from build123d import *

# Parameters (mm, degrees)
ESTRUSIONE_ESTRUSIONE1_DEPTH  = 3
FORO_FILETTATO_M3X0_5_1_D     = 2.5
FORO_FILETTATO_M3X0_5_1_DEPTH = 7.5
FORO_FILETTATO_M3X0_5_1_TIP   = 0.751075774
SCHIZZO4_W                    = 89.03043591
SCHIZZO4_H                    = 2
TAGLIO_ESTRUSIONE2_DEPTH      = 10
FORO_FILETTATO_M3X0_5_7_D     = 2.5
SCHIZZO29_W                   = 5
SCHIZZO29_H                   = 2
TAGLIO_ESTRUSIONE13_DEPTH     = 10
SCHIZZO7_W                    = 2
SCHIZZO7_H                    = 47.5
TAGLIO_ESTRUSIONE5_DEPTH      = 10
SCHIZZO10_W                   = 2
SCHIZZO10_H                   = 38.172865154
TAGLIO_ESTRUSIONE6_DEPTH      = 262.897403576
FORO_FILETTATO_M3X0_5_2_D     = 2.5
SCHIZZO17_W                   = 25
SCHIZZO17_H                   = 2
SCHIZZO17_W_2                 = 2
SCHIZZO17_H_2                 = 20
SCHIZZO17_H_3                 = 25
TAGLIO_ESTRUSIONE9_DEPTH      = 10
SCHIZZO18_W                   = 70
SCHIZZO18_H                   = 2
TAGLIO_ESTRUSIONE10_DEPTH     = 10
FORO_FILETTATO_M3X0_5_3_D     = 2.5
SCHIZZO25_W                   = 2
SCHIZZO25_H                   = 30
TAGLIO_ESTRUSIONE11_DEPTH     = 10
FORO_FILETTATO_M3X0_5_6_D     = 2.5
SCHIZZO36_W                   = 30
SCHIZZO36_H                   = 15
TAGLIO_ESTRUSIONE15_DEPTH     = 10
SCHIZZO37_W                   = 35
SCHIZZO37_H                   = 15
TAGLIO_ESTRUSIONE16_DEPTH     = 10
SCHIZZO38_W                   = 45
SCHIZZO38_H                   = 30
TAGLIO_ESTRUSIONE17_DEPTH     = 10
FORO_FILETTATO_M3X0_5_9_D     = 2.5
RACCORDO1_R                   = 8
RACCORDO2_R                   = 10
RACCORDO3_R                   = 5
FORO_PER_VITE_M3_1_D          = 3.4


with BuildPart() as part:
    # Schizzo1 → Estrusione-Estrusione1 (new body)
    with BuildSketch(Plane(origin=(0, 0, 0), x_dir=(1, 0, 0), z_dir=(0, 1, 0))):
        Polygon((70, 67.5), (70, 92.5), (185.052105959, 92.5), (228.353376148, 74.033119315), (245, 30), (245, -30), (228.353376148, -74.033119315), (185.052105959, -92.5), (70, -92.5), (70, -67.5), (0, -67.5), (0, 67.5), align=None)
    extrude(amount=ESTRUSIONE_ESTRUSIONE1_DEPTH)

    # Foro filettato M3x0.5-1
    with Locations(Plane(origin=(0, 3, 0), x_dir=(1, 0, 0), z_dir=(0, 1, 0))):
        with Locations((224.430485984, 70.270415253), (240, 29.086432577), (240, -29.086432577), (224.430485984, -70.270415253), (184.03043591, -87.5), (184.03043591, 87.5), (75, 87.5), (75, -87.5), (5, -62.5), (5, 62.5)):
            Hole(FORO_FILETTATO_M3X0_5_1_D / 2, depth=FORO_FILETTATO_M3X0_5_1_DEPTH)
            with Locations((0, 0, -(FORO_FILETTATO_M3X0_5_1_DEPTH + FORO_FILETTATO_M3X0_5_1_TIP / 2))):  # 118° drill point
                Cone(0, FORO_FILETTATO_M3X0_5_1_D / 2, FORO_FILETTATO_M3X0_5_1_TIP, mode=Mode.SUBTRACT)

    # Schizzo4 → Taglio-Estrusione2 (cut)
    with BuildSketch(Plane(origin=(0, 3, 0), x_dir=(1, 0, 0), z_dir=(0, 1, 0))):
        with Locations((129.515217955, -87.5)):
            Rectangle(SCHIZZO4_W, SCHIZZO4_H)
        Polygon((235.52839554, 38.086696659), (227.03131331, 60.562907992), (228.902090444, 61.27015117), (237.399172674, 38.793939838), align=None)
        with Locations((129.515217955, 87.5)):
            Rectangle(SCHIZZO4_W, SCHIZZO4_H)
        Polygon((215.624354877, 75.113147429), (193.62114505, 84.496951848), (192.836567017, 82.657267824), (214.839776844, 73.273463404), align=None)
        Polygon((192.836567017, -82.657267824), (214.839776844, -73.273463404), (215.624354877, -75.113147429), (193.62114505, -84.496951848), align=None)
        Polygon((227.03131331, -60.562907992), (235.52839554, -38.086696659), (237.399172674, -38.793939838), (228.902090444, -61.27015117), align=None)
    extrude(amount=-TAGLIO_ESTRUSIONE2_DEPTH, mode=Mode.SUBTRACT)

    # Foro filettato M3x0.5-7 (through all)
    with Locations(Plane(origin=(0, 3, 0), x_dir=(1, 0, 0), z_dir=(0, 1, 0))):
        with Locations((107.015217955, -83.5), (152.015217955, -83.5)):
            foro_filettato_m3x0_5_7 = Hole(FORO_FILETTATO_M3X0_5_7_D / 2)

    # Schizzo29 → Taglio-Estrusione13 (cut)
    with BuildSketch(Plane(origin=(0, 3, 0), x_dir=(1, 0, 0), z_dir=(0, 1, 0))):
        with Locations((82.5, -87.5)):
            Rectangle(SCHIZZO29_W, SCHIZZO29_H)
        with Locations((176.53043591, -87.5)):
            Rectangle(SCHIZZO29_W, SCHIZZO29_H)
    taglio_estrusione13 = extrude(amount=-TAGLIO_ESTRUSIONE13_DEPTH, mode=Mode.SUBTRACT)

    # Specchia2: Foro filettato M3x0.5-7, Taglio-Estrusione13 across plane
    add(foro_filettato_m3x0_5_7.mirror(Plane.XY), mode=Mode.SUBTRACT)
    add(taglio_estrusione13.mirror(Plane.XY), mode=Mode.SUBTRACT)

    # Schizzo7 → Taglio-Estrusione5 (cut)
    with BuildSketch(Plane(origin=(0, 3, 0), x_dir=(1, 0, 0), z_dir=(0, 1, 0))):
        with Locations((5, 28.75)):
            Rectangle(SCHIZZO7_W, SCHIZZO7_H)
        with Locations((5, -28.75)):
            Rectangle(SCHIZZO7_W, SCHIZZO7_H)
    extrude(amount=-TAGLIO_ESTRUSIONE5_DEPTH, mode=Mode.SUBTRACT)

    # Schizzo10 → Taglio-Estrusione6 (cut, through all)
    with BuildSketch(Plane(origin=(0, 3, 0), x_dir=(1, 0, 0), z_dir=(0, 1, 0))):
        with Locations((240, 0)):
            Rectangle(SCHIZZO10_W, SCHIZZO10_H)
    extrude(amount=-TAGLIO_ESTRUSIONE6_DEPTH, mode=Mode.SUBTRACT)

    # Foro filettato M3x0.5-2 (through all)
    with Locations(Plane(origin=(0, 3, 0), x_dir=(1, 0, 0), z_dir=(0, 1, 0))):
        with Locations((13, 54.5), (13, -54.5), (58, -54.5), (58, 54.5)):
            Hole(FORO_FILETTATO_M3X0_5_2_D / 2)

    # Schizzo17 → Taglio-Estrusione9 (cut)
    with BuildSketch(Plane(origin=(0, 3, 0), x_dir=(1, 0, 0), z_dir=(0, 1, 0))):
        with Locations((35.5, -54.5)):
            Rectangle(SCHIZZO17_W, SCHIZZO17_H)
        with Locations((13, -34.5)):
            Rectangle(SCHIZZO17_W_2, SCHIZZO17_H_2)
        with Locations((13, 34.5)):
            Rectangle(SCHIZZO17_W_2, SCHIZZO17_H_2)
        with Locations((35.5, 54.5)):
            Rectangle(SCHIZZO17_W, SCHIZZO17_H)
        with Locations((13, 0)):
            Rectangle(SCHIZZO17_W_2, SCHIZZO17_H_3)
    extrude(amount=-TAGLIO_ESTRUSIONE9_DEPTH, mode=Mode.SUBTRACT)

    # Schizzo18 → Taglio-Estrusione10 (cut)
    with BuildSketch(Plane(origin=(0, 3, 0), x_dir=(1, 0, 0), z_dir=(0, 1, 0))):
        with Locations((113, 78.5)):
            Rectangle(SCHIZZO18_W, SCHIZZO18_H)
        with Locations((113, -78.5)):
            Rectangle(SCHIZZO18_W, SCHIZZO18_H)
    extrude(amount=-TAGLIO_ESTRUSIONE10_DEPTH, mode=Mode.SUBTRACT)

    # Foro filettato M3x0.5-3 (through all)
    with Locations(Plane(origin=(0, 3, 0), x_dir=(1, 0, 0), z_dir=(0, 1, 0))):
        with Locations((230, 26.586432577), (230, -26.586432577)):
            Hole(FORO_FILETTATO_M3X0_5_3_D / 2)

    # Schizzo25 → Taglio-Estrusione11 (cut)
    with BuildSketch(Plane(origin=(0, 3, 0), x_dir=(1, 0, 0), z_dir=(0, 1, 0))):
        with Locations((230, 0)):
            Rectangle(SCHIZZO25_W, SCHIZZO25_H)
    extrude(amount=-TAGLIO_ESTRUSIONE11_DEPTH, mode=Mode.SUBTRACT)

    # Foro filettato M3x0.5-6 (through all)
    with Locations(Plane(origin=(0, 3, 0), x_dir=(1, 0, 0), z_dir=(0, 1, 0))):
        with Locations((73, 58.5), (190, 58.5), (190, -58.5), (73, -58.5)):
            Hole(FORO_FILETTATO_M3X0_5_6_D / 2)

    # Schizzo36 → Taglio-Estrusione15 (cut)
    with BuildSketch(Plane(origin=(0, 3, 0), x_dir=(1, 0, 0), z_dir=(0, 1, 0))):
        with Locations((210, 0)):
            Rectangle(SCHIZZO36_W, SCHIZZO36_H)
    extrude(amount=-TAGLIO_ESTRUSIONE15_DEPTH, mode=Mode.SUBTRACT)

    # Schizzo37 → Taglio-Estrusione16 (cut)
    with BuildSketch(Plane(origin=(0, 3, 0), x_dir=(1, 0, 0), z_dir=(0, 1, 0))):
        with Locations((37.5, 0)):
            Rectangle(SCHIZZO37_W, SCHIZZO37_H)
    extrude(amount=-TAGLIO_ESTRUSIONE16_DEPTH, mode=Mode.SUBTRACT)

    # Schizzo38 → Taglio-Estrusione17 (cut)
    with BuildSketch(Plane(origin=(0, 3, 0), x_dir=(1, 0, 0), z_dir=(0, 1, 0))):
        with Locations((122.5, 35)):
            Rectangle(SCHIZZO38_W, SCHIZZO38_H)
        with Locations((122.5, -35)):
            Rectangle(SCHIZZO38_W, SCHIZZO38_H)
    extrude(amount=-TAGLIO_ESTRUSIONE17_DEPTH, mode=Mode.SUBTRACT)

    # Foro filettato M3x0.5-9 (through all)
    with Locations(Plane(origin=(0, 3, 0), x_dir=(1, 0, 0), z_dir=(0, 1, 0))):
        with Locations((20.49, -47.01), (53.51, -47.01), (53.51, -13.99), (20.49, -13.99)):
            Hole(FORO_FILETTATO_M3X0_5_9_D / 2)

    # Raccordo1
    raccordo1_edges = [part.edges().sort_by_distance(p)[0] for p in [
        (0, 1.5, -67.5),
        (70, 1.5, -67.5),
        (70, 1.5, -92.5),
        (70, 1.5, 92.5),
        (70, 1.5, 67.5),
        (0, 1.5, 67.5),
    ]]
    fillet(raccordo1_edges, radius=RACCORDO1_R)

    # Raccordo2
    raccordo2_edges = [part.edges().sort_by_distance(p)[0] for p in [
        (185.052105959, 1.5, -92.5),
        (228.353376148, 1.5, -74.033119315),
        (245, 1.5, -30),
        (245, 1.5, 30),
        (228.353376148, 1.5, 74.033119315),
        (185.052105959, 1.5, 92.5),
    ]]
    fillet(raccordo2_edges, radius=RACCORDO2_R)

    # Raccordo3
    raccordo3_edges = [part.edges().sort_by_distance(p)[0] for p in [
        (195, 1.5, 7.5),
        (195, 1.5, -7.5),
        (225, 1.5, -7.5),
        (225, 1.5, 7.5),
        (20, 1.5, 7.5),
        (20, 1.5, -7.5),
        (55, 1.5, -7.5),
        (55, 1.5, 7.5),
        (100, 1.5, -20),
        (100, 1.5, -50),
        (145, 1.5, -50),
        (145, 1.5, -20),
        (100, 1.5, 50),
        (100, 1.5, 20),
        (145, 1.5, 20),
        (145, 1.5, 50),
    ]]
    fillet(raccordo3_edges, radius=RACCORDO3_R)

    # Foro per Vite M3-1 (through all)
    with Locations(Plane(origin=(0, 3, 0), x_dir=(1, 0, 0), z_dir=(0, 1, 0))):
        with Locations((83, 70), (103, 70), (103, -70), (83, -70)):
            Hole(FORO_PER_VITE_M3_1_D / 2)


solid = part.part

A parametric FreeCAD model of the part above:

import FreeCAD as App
import Part
import Sketcher

V = App.Vector


def edges_at(feature, points):
    """Names of the edges that pass closest to the given points."""
    edges = feature.Shape.Edges
    near = lambda p: min(range(len(edges)), key=lambda i: edges[i].distToShape(Part.Vertex(*p))[0])
    return sorted({f"Edge{near(p) + 1}" for p in points})

doc = App.newDocument("Part")
body = doc.addObject("PartDesign::Body", "Body")

# Sketch on XZ plane
sketch1 = body.newObject("Sketcher::SketchObject", "Sketch")
sketch1.AttachmentSupport = (doc.getObject("XZ_Plane"), [""])
sketch1.MapMode = "FlatFace"
sketch1.addGeometry(Part.LineSegment(V(70, -92, 0), V(70, -68, 0)), False)
sketch1.addGeometry(Part.LineSegment(V(70, -68, 0), V(0, -68, 0)), False)
sketch1.addGeometry(Part.LineSegment(V(0, -68, 0), V(0, 68, 0)), False)
sketch1.addGeometry(Part.LineSegment(V(0, 68, 0), V(70, 68, 0)), False)
sketch1.addGeometry(Part.LineSegment(V(70, 68, 0), V(70, 92, 0)), False)
sketch1.addGeometry(Part.LineSegment(V(70, 92, 0), V(185, 92, 0)), False)
sketch1.addGeometry(Part.LineSegment(V(185, 92, 0), V(228, 74, 0)), False)
sketch1.addGeometry(Part.LineSegment(V(228, 74, 0), V(245, 30, 0)), False)
sketch1.addGeometry(Part.LineSegment(V(245, 30, 0), V(245, -30, 0)), False)
sketch1.addGeometry(Part.LineSegment(V(245, -30, 0), V(228, -74, 0)), False)
sketch1.addGeometry(Part.LineSegment(V(228, -74, 0), V(185, -92, 0)), False)
sketch1.addGeometry(Part.LineSegment(V(185, -92, 0), V(70, -92, 0)), False)
sketch1.addConstraint(Sketcher.Constraint("Coincident", 0, 2, 1, 1))
sketch1.addConstraint(Sketcher.Constraint("Coincident", 1, 2, 2, 1))
sketch1.addConstraint(Sketcher.Constraint("Coincident", 2, 2, 3, 1))
sketch1.addConstraint(Sketcher.Constraint("Coincident", 3, 2, 4, 1))
sketch1.addConstraint(Sketcher.Constraint("Coincident", 4, 2, 5, 1))
sketch1.addConstraint(Sketcher.Constraint("Coincident", 5, 2, 6, 1))
sketch1.addConstraint(Sketcher.Constraint("Coincident", 6, 2, 7, 1))
sketch1.addConstraint(Sketcher.Constraint("Coincident", 7, 2, 8, 1))
sketch1.addConstraint(Sketcher.Constraint("Coincident", 8, 2, 9, 1))
sketch1.addConstraint(Sketcher.Constraint("Coincident", 9, 2, 10, 1))
sketch1.addConstraint(Sketcher.Constraint("Coincident", 10, 2, 11, 1))
sketch1.addConstraint(Sketcher.Constraint("Coincident", 11, 2, 0, 1))
sketch1.addConstraint(Sketcher.Constraint("Vertical", 0))
sketch1.addConstraint(Sketcher.Constraint("Horizontal", 1))
sketch1.addConstraint(Sketcher.Constraint("Vertical", 2))
sketch1.addConstraint(Sketcher.Constraint("Horizontal", 3))
sketch1.addConstraint(Sketcher.Constraint("Vertical", 4))
sketch1.addConstraint(Sketcher.Constraint("Horizontal", 5))
sketch1.addConstraint(Sketcher.Constraint("Vertical", 8))
sketch1.addConstraint(Sketcher.Constraint("Horizontal", 11))
sketch1.addConstraint(Sketcher.Constraint("Symmetric", 1, 2, 2, 2, -1, 1))
sketch1.addConstraint(Sketcher.Constraint("Symmetric", 6, 2, 9, 2, -1))
sketch1.addConstraint(Sketcher.Constraint("Symmetric", 5, 2, 10, 2, -1))
sketch1.addConstraint(Sketcher.Constraint("Vertical", 0, 2, 3, 2))
sketch1.addConstraint(Sketcher.Constraint("Equal", 6, 7))
sketch1.addConstraint(Sketcher.Constraint("Equal", 7, 9))
sketch1.addConstraint(Sketcher.Constraint("DistanceX", 1, 2, 1, 1, 70.0))
sketch1.addConstraint(Sketcher.Constraint("DistanceY", 0, 1, 0, 2, 25.0))
sketch1.addConstraint(Sketcher.Constraint("DistanceY", 2, 1, 2, 2, 135.0))
sketch1.addConstraint(Sketcher.Constraint("DistanceY", 8, 2, 8, 1, 60.0))
sketch1.addConstraint(Sketcher.Constraint("DistanceX", -1, 1, 7, 2, 245.0))
sketch1.addConstraint(Sketcher.Constraint("Distance", 6, 47.074682))
sketch1.addConstraint(Sketcher.Constraint("DistanceX", 5, 1, 5, 2, 115.052106))
pad1 = body.newObject("PartDesign::Pad", "Pad")
pad1.Profile = sketch1
pad1.Length = 3
pad1.Reversed = True

# Sketch on XZ plane
sketch2 = body.newObject("Sketcher::SketchObject", "Sketch001")
sketch2.AttachmentSupport = (doc.getObject("XZ_Plane"), [""])
sketch2.MapMode = "FlatFace"
sketch2.AttachmentOffset = App.Placement(V(0, 0, -3), App.Rotation())
sketch2.addGeometry(Part.Circle(V(224.4, -70.3, 0), V(0, 0, 1), 1.2), False)
sketch2.addGeometry(Part.Circle(V(240, -29.1, 0), V(0, 0, 1), 1.2), False)
sketch2.addGeometry(Part.Circle(V(240, 29.1, 0), V(0, 0, 1), 1.2), False)
sketch2.addGeometry(Part.Circle(V(224.4, 70.3, 0), V(0, 0, 1), 1.2), False)
sketch2.addGeometry(Part.Circle(V(184, 87.5, 0), V(0, 0, 1), 1.2), False)
sketch2.addGeometry(Part.Circle(V(184, -87.5, 0), V(0, 0, 1), 1.2), False)
sketch2.addGeometry(Part.Circle(V(75, -87.5, 0), V(0, 0, 1), 1.2), False)
sketch2.addGeometry(Part.Circle(V(75, 87.5, 0), V(0, 0, 1), 1.2), False)
sketch2.addGeometry(Part.Circle(V(5, 62.5, 0), V(0, 0, 1), 1.2), False)
sketch2.addGeometry(Part.Circle(V(5, -62.5, 0), V(0, 0, 1), 1.2), False)
sketch2.addConstraint(Sketcher.Constraint("Equal", 0, 1))
sketch2.addConstraint(Sketcher.Constraint("Equal", 1, 2))
sketch2.addConstraint(Sketcher.Constraint("Equal", 2, 3))
sketch2.addConstraint(Sketcher.Constraint("Equal", 3, 4))
sketch2.addConstraint(Sketcher.Constraint("Equal", 4, 5))
sketch2.addConstraint(Sketcher.Constraint("Equal", 5, 6))
sketch2.addConstraint(Sketcher.Constraint("Equal", 6, 7))
sketch2.addConstraint(Sketcher.Constraint("Equal", 7, 8))
sketch2.addConstraint(Sketcher.Constraint("Equal", 8, 9))
sketch2.addConstraint(Sketcher.Constraint("Symmetric", 1, 3, 2, 3, -1))
sketch2.addConstraint(Sketcher.Constraint("Symmetric", 0, 3, 3, 3, -1))
sketch2.addConstraint(Sketcher.Constraint("Symmetric", 4, 3, 5, 3, -1))
sketch2.addConstraint(Sketcher.Constraint("Symmetric", 6, 3, 7, 3, -1))
sketch2.addConstraint(Sketcher.Constraint("Symmetric", 8, 3, 9, 3, -1))
sketch2.addConstraint(Sketcher.Constraint("Horizontal", 5, 3, 6, 3))
sketch2.addConstraint(Sketcher.Constraint("Diameter", 0, 2.5))
sketch2.addConstraint(Sketcher.Constraint("DistanceX", -1, 1, 1, 3, 240.0))
sketch2.addConstraint(Sketcher.Constraint("DistanceX", -1, 1, 6, 3, 75.0))
sketch2.addConstraint(Sketcher.Constraint("DistanceX", -1, 1, 8, 3, 5.0))
sketch2.addConstraint(Sketcher.Constraint("DistanceY", 5, 3, 4, 3, 175.0))
sketch2.addConstraint(Sketcher.Constraint("DistanceY", 8, 3, 7, 3, 25.0))
sketch2.addConstraint(Sketcher.Constraint("DistanceY", 0, 3, 3, 3, 140.540831))
sketch2.addConstraint(Sketcher.Constraint("DistanceX", 4, 3, 3, 3, 40.40005))
sketch2.addConstraint(Sketcher.Constraint("DistanceX", -1, 1, 0, 3, 224.430486))
sketch2.addConstraint(Sketcher.Constraint("DistanceY", 1, 3, -1, 1, 29.086433))
doc.recompute()
hole = body.newObject("PartDesign::Hole", "Hole")
hole.Profile = sketch2
hole.ThreadType = "None"
hole.Diameter = 2.5
hole.DepthType = "Dimension"
hole.Depth = 7.5
hole.DrillPoint = "Angled"
hole.DrillPointAngle = 118
hole.Reversed = True

# Sketch on XZ plane
sketch3 = body.newObject("Sketcher::SketchObject", "Sketch002")
sketch3.AttachmentSupport = (doc.getObject("XZ_Plane"), [""])
sketch3.MapMode = "FlatFace"
sketch3.AttachmentOffset = App.Placement(V(0, 0, -3), App.Rotation())
sketch3.addGeometry(Part.LineSegment(V(85, 86.5, 0), V(85, 88.5, 0)), False)
sketch3.addGeometry(Part.LineSegment(V(85, 88.5, 0), V(174, 88.5, 0)), False)
sketch3.addGeometry(Part.LineSegment(V(174, 88.5, 0), V(174, 86.5, 0)), False)
sketch3.addGeometry(Part.LineSegment(V(174, 86.5, 0), V(85, 86.5, 0)), False)
sketch3.addGeometry(Part.LineSegment(V(227, -60.6, 0), V(235.5, -38.1, 0)), False)
sketch3.addGeometry(Part.LineSegment(V(235.5, -38.1, 0), V(237.4, -38.8, 0)), False)
sketch3.addGeometry(Part.LineSegment(V(237.4, -38.8, 0), V(228.9, -61.3, 0)), False)
sketch3.addGeometry(Part.LineSegment(V(228.9, -61.3, 0), V(227, -60.6, 0)), False)
sketch3.addGeometry(Part.LineSegment(V(85, -88.5, 0), V(85, -86.5, 0)), False)
sketch3.addGeometry(Part.LineSegment(V(85, -86.5, 0), V(174, -86.5, 0)), False)
sketch3.addGeometry(Part.LineSegment(V(174, -86.5, 0), V(174, -88.5, 0)), False)
sketch3.addGeometry(Part.LineSegment(V(174, -88.5, 0), V(85, -88.5, 0)), False)
sketch3.addGeometry(Part.LineSegment(V(215.6, -75.1, 0), V(193.6, -84.5, 0)), False)
sketch3.addGeometry(Part.LineSegment(V(193.6, -84.5, 0), V(192.8, -82.7, 0)), False)
sketch3.addGeometry(Part.LineSegment(V(192.8, -82.7, 0), V(214.8, -73.3, 0)), False)
sketch3.addGeometry(Part.LineSegment(V(214.8, -73.3, 0), V(215.6, -75.1, 0)), False)
sketch3.addGeometry(Part.LineSegment(V(214.8, 73.3, 0), V(192.8, 82.7, 0)), False)
sketch3.addGeometry(Part.LineSegment(V(192.8, 82.7, 0), V(193.6, 84.5, 0)), False)
sketch3.addGeometry(Part.LineSegment(V(193.6, 84.5, 0), V(215.6, 75.1, 0)), False)
sketch3.addGeometry(Part.LineSegment(V(215.6, 75.1, 0), V(214.8, 73.3, 0)), False)
sketch3.addGeometry(Part.LineSegment(V(235.5, 38.1, 0), V(227, 60.6, 0)), False)
sketch3.addGeometry(Part.LineSegment(V(227, 60.6, 0), V(228.9, 61.3, 0)), False)
sketch3.addGeometry(Part.LineSegment(V(228.9, 61.3, 0), V(237.4, 38.8, 0)), False)
sketch3.addGeometry(Part.LineSegment(V(237.4, 38.8, 0), V(235.5, 38.1, 0)), False)
sketch3.addConstraint(Sketcher.Constraint("Coincident", 0, 2, 1, 1))
sketch3.addConstraint(Sketcher.Constraint("Coincident", 1, 2, 2, 1))
sketch3.addConstraint(Sketcher.Constraint("Coincident", 2, 2, 3, 1))
sketch3.addConstraint(Sketcher.Constraint("Coincident", 3, 2, 0, 1))
sketch3.addConstraint(Sketcher.Constraint("Coincident", 4, 2, 5, 1))
sketch3.addConstraint(Sketcher.Constraint("Coincident", 5, 2, 6, 1))
sketch3.addConstraint(Sketcher.Constraint("Coincident", 6, 2, 7, 1))
sketch3.addConstraint(Sketcher.Constraint("Coincident", 7, 2, 4, 1))
sketch3.addConstraint(Sketcher.Constraint("Coincident", 8, 2, 9, 1))
sketch3.addConstraint(Sketcher.Constraint("Coincident", 9, 2, 10, 1))
sketch3.addConstraint(Sketcher.Constraint("Coincident", 10, 2, 11, 1))
sketch3.addConstraint(Sketcher.Constraint("Coincident", 11, 2, 8, 1))
sketch3.addConstraint(Sketcher.Constraint("Coincident", 12, 2, 13, 1))
sketch3.addConstraint(Sketcher.Constraint("Coincident", 13, 2, 14, 1))
sketch3.addConstraint(Sketcher.Constraint("Coincident", 14, 2, 15, 1))
sketch3.addConstraint(Sketcher.Constraint("Coincident", 15, 2, 12, 1))
sketch3.addConstraint(Sketcher.Constraint("Coincident", 16, 2, 17, 1))
sketch3.addConstraint(Sketcher.Constraint("Coincident", 17, 2, 18, 1))
sketch3.addConstraint(Sketcher.Constraint("Coincident", 18, 2, 19, 1))
sketch3.addConstraint(Sketcher.Constraint("Coincident", 19, 2, 16, 1))
sketch3.addConstraint(Sketcher.Constraint("Coincident", 20, 2, 21, 1))
sketch3.addConstraint(Sketcher.Constraint("Coincident", 21, 2, 22, 1))
sketch3.addConstraint(Sketcher.Constraint("Coincident", 22, 2, 23, 1))
sketch3.addConstraint(Sketcher.Constraint("Coincident", 23, 2, 20, 1))
sketch3.addConstraint(Sketcher.Constraint("Vertical", 0))
sketch3.addConstraint(Sketcher.Constraint("Horizontal", 1))
sketch3.addConstraint(Sketcher.Constraint("Vertical", 2))
sketch3.addConstraint(Sketcher.Constraint("Horizontal", 3))
sketch3.addConstraint(Sketcher.Constraint("Vertical", 8))
sketch3.addConstraint(Sketcher.Constraint("Horizontal", 9))
sketch3.addConstraint(Sketcher.Constraint("Vertical", 10))
sketch3.addConstraint(Sketcher.Constraint("Horizontal", 11))
sketch3.addConstraint(Sketcher.Constraint("Symmetric", 3, 2, 8, 2, -1))
sketch3.addConstraint(Sketcher.Constraint("Symmetric", 1, 2, 10, 2, -1))
sketch3.addConstraint(Sketcher.Constraint("Symmetric", 13, 2, 16, 2, -1))
sketch3.addConstraint(Sketcher.Constraint("Symmetric", 12, 2, 17, 2, -1))
sketch3.addConstraint(Sketcher.Constraint("Symmetric", 15, 2, 18, 2, -1))
sketch3.addConstraint(Sketcher.Constraint("Symmetric", 14, 2, 19, 2, -1))
sketch3.addConstraint(Sketcher.Constraint("Symmetric", 7, 2, 20, 2, -1))
sketch3.addConstraint(Sketcher.Constraint("Symmetric", 6, 2, 21, 2, -1))
sketch3.addConstraint(Sketcher.Constraint("Symmetric", 5, 2, 22, 2, -1))
sketch3.addConstraint(Sketcher.Constraint("Symmetric", 4, 2, 23, 2, -1))
sketch3.addConstraint(Sketcher.Constraint("Perpendicular", 4, 5))
sketch3.addConstraint(Sketcher.Constraint("Perpendicular", 5, 6))
sketch3.addConstraint(Sketcher.Constraint("Perpendicular", 6, 7))
sketch3.addConstraint(Sketcher.Constraint("Perpendicular", 12, 13))
sketch3.addConstraint(Sketcher.Constraint("Perpendicular", 13, 14))
sketch3.addConstraint(Sketcher.Constraint("Perpendicular", 14, 15))
sketch3.addConstraint(Sketcher.Constraint("Equal", 7, 13))
sketch3.addConstraint(Sketcher.Constraint("DistanceY", 0, 1, 0, 2, 2.0))
sketch3.addConstraint(Sketcher.Constraint("Distance", 5, 2.0))
sketch3.addConstraint(Sketcher.Constraint("DistanceX", -1, 1, 0, 2, 85.0))
sketch3.addConstraint(Sketcher.Constraint("DistanceY", 8, 2, 3, 2, 173.0))
sketch3.addConstraint(Sketcher.Constraint("DistanceY", 12, 2, 6, 2, 23.226801))
sketch3.addConstraint(Sketcher.Constraint("Distance", 12, 23.92064))
sketch3.addConstraint(Sketcher.Constraint("DistanceX", 1, 1, 1, 2, 89.030436))
sketch3.addConstraint(Sketcher.Constraint("DistanceY", 5, 2, -1, 1, 38.79394))
sketch3.addConstraint(Sketcher.Constraint("DistanceX", -1, 1, 6, 2, 228.90209))
sketch3.addConstraint(Sketcher.Constraint("DistanceY", 6, 2, -1, 1, 61.270151))
sketch3.addConstraint(Sketcher.Constraint("DistanceX", 2, 2, 4, 2, 61.49796))
sketch3.addConstraint(Sketcher.Constraint("DistanceX", 9, 2, 12, 2, 19.590709))
sketch3.addConstraint(Sketcher.Constraint("DistanceX", 13, 2, 12, 2, 0.784578))
pocket1 = body.newObject("PartDesign::Pocket", "Pocket")
pocket1.Profile = sketch3
pocket1.Length = 10
pocket1.Reversed = True

# Sketch on XZ plane
sketch4 = body.newObject("Sketcher::SketchObject", "Sketch003")
sketch4.AttachmentSupport = (doc.getObject("XZ_Plane"), [""])
sketch4.MapMode = "FlatFace"
sketch4.AttachmentOffset = App.Placement(V(0, 0, -3), App.Rotation())
sketch4.addGeometry(Part.Circle(V(107, 83.5, 0), V(0, 0, 1), 1.2), False)
sketch4.addGeometry(Part.Circle(V(152, 83.5, 0), V(0, 0, 1), 1.2), False)
sketch4.addConstraint(Sketcher.Constraint("Equal", 0, 1))
sketch4.addConstraint(Sketcher.Constraint("Horizontal", 0, 3, 1, 3))
sketch4.addConstraint(Sketcher.Constraint("Diameter", 0, 2.5))
sketch4.addConstraint(Sketcher.Constraint("DistanceX", 0, 3, 1, 3, 45.0))
sketch4.addConstraint(Sketcher.Constraint("DistanceY", -1, 1, 0, 3, 83.5))
sketch4.addConstraint(Sketcher.Constraint("DistanceX", -1, 1, 0, 3, 107.015218))
doc.recompute()
hole2 = body.newObject("PartDesign::Hole", "Hole001")
hole2.Profile = sketch4
hole2.ThreadType = "None"
hole2.Diameter = 2.5
hole2.DepthType = "ThroughAll"
hole2.Reversed = True

# Sketch on XZ plane
sketch5 = body.newObject("Sketcher::SketchObject", "Sketch004")
sketch5.AttachmentSupport = (doc.getObject("XZ_Plane"), [""])
sketch5.MapMode = "FlatFace"
sketch5.AttachmentOffset = App.Placement(V(0, 0, -3), App.Rotation())
sketch5.addGeometry(Part.LineSegment(V(80, 86.5, 0), V(80, 88.5, 0)), False)
sketch5.addGeometry(Part.LineSegment(V(80, 88.5, 0), V(85, 88.5, 0)), False)
sketch5.addGeometry(Part.LineSegment(V(85, 88.5, 0), V(85, 86.5, 0)), False)
sketch5.addGeometry(Part.LineSegment(V(85, 86.5, 0), V(80, 86.5, 0)), False)
sketch5.addGeometry(Part.LineSegment(V(174, 86.5, 0), V(174, 88.5, 0)), False)
sketch5.addGeometry(Part.LineSegment(V(174, 88.5, 0), V(179, 88.5, 0)), False)
sketch5.addGeometry(Part.LineSegment(V(179, 88.5, 0), V(179, 86.5, 0)), False)
sketch5.addGeometry(Part.LineSegment(V(179, 86.5, 0), V(174, 86.5, 0)), False)
sketch5.addConstraint(Sketcher.Constraint("Coincident", 0, 2, 1, 1))
sketch5.addConstraint(Sketcher.Constraint("Coincident", 1, 2, 2, 1))
sketch5.addConstraint(Sketcher.Constraint("Coincident", 2, 2, 3, 1))
sketch5.addConstraint(Sketcher.Constraint("Coincident", 3, 2, 0, 1))
sketch5.addConstraint(Sketcher.Constraint("Coincident", 4, 2, 5, 1))
sketch5.addConstraint(Sketcher.Constraint("Coincident", 5, 2, 6, 1))
sketch5.addConstraint(Sketcher.Constraint("Coincident", 6, 2, 7, 1))
sketch5.addConstraint(Sketcher.Constraint("Coincident", 7, 2, 4, 1))
sketch5.addConstraint(Sketcher.Constraint("Vertical", 0))
sketch5.addConstraint(Sketcher.Constraint("Horizontal", 1))
sketch5.addConstraint(Sketcher.Constraint("Vertical", 2))
sketch5.addConstraint(Sketcher.Constraint("Horizontal", 3))
sketch5.addConstraint(Sketcher.Constraint("Vertical", 4))
sketch5.addConstraint(Sketcher.Constraint("Horizontal", 5))
sketch5.addConstraint(Sketcher.Constraint("Vertical", 6))
sketch5.addConstraint(Sketcher.Constraint("Horizontal", 7))
sketch5.addConstraint(Sketcher.Constraint("Horizontal", 1, 2, 4, 2))
sketch5.addConstraint(Sketcher.Constraint("Horizontal", 3, 2, 6, 2))
sketch5.addConstraint(Sketcher.Constraint("Equal", 3, 5))
sketch5.addConstraint(Sketcher.Constraint("DistanceX", 1, 1, 1, 2, 5.0))
sketch5.addConstraint(Sketcher.Constraint("DistanceY", 0, 1, 0, 2, 2.0))
sketch5.addConstraint(Sketcher.Constraint("DistanceX", -1, 1, 0, 2, 80.0))
sketch5.addConstraint(Sketcher.Constraint("DistanceY", -1, 1, 0, 2, 88.5))
sketch5.addConstraint(Sketcher.Constraint("DistanceX", -1, 1, 4, 2, 174.030436))
pocket2 = body.newObject("PartDesign::Pocket", "Pocket001")
pocket2.Profile = sketch5
pocket2.Length = 10
pocket2.Reversed = True
doc.recompute()

mirrored = body.newObject("PartDesign::Mirrored", "Mirrored")
mirrored.Originals = [hole2, pocket2]
mirrored.MirrorPlane = (doc.getObject("XY_Plane"), [""])
body.Tip = mirrored

# Sketch on XZ plane
sketch6 = body.newObject("Sketcher::SketchObject", "Sketch005")
sketch6.AttachmentSupport = (doc.getObject("XZ_Plane"), [""])
sketch6.MapMode = "FlatFace"
sketch6.AttachmentOffset = App.Placement(V(0, 0, -3), App.Rotation())
sketch6.addGeometry(Part.LineSegment(V(4, -52.5, 0), V(4, -5, 0)), False)
sketch6.addGeometry(Part.LineSegment(V(4, -5, 0), V(6, -5, 0)), False)
sketch6.addGeometry(Part.LineSegment(V(6, -5, 0), V(6, -52.5, 0)), False)
sketch6.addGeometry(Part.LineSegment(V(6, -52.5, 0), V(4, -52.5, 0)), False)
sketch6.addGeometry(Part.LineSegment(V(4, 5, 0), V(4, 52.5, 0)), False)
sketch6.addGeometry(Part.LineSegment(V(4, 52.5, 0), V(6, 52.5, 0)), False)
sketch6.addGeometry(Part.LineSegment(V(6, 52.5, 0), V(6, 5, 0)), False)
sketch6.addGeometry(Part.LineSegment(V(6, 5, 0), V(4, 5, 0)), False)
sketch6.addConstraint(Sketcher.Constraint("Coincident", 0, 2, 1, 1))
sketch6.addConstraint(Sketcher.Constraint("Coincident", 1, 2, 2, 1))
sketch6.addConstraint(Sketcher.Constraint("Coincident", 2, 2, 3, 1))
sketch6.addConstraint(Sketcher.Constraint("Coincident", 3, 2, 0, 1))
sketch6.addConstraint(Sketcher.Constraint("Coincident", 4, 2, 5, 1))
sketch6.addConstraint(Sketcher.Constraint("Coincident", 5, 2, 6, 1))
sketch6.addConstraint(Sketcher.Constraint("Coincident", 6, 2, 7, 1))
sketch6.addConstraint(Sketcher.Constraint("Coincident", 7, 2, 4, 1))
sketch6.addConstraint(Sketcher.Constraint("Vertical", 0))
sketch6.addConstraint(Sketcher.Constraint("Horizontal", 1))
sketch6.addConstraint(Sketcher.Constraint("Vertical", 2))
sketch6.addConstraint(Sketcher.Constraint("Horizontal", 3))
sketch6.addConstraint(Sketcher.Constraint("Vertical", 4))
sketch6.addConstraint(Sketcher.Constraint("Horizontal", 5))
sketch6.addConstraint(Sketcher.Constraint("Vertical", 6))
sketch6.addConstraint(Sketcher.Constraint("Horizontal", 7))
sketch6.addConstraint(Sketcher.Constraint("Symmetric", 3, 2, 4, 2, -1))
sketch6.addConstraint(Sketcher.Constraint("Symmetric", 1, 2, 6, 2, -1))
sketch6.addConstraint(Sketcher.Constraint("DistanceX", 1, 1, 1, 2, 2.0))
sketch6.addConstraint(Sketcher.Constraint("DistanceY", 0, 1, 0, 2, 47.5))
sketch6.addConstraint(Sketcher.Constraint("DistanceX", -1, 1, 0, 2, 4.0))
sketch6.addConstraint(Sketcher.Constraint("DistanceY", 0, 2, -1, 1, 5.0))
pocket3 = body.newObject("PartDesign::Pocket", "Pocket002")
pocket3.Profile = sketch6
pocket3.Length = 10
pocket3.Reversed = True

# Sketch on XZ plane
sketch7 = body.newObject("Sketcher::SketchObject", "Sketch006")
sketch7.AttachmentSupport = (doc.getObject("XZ_Plane"), [""])
sketch7.MapMode = "FlatFace"
sketch7.AttachmentOffset = App.Placement(V(0, 0, -3), App.Rotation())
sketch7.addGeometry(Part.LineSegment(V(239, -19.1, 0), V(239, 19.1, 0)), False)
sketch7.addGeometry(Part.LineSegment(V(239, 19.1, 0), V(241, 19.1, 0)), False)
sketch7.addGeometry(Part.LineSegment(V(241, 19.1, 0), V(241, -19.1, 0)), False)
sketch7.addGeometry(Part.LineSegment(V(241, -19.1, 0), V(239, -19.1, 0)), False)
sketch7.addConstraint(Sketcher.Constraint("Coincident", 0, 2, 1, 1))
sketch7.addConstraint(Sketcher.Constraint("Coincident", 1, 2, 2, 1))
sketch7.addConstraint(Sketcher.Constraint("Coincident", 2, 2, 3, 1))
sketch7.addConstraint(Sketcher.Constraint("Coincident", 3, 2, 0, 1))
sketch7.addConstraint(Sketcher.Constraint("Vertical", 0))
sketch7.addConstraint(Sketcher.Constraint("Horizontal", 1))
sketch7.addConstraint(Sketcher.Constraint("Vertical", 2))
sketch7.addConstraint(Sketcher.Constraint("Horizontal", 3))
sketch7.addConstraint(Sketcher.Constraint("DistanceX", 1, 1, 1, 2, 2.0))
sketch7.addConstraint(Sketcher.Constraint("DistanceX", -1, 1, 0, 2, 239.0))
sketch7.addConstraint(Sketcher.Constraint("DistanceY", 0, 1, 0, 2, 38.172865))
sketch7.addConstraint(Sketcher.Constraint("DistanceY", -1, 1, 0, 2, 19.086433))
pocket4 = body.newObject("PartDesign::Pocket", "Pocket003")
pocket4.Profile = sketch7
pocket4.Type = "ThroughAll"
pocket4.Reversed = True

# Sketch on XZ plane
sketch8 = body.newObject("Sketcher::SketchObject", "Sketch007")
sketch8.AttachmentSupport = (doc.getObject("XZ_Plane"), [""])
sketch8.MapMode = "FlatFace"
sketch8.AttachmentOffset = App.Placement(V(0, 0, -3), App.Rotation())
sketch8.addGeometry(Part.Circle(V(13, -54.5, 0), V(0, 0, 1), 1.2), False)
sketch8.addGeometry(Part.Circle(V(13, 54.5, 0), V(0, 0, 1), 1.2), False)
sketch8.addGeometry(Part.Circle(V(58, 54.5, 0), V(0, 0, 1), 1.2), False)
sketch8.addGeometry(Part.Circle(V(58, -54.5, 0), V(0, 0, 1), 1.2), False)
sketch8.addConstraint(Sketcher.Constraint("Equal", 0, 1))
sketch8.addConstraint(Sketcher.Constraint("Equal", 1, 2))
sketch8.addConstraint(Sketcher.Constraint("Equal", 2, 3))
sketch8.addConstraint(Sketcher.Constraint("Symmetric", 0, 3, 1, 3, -1))
sketch8.addConstraint(Sketcher.Constraint("Symmetric", 2, 3, 3, 3, -1))
sketch8.addConstraint(Sketcher.Constraint("Horizontal", 1, 3, 2, 3))
sketch8.addConstraint(Sketcher.Constraint("Diameter", 0, 2.5))
sketch8.addConstraint(Sketcher.Constraint("DistanceX", -1, 1, 0, 3, 13.0))
sketch8.addConstraint(Sketcher.Constraint("DistanceX", -1, 1, 2, 3, 58.0))
sketch8.addConstraint(Sketcher.Constraint("DistanceY", 0, 3, 1, 3, 109.0))
doc.recompute()
hole3 = body.newObject("PartDesign::Hole", "Hole002")
hole3.Profile = sketch8
hole3.ThreadType = "None"
hole3.Diameter = 2.5
hole3.DepthType = "ThroughAll"
hole3.Reversed = True

# Sketch on XZ plane
sketch9 = body.newObject("Sketcher::SketchObject", "Sketch008")
sketch9.AttachmentSupport = (doc.getObject("XZ_Plane"), [""])
sketch9.MapMode = "FlatFace"
sketch9.AttachmentOffset = App.Placement(V(0, 0, -3), App.Rotation())
sketch9.addGeometry(Part.LineSegment(V(23, 53.5, 0), V(23, 55.5, 0)), False)
sketch9.addGeometry(Part.LineSegment(V(23, 55.5, 0), V(48, 55.5, 0)), False)
sketch9.addGeometry(Part.LineSegment(V(48, 55.5, 0), V(48, 53.5, 0)), False)
sketch9.addGeometry(Part.LineSegment(V(48, 53.5, 0), V(23, 53.5, 0)), False)
sketch9.addGeometry(Part.LineSegment(V(12, 24.5, 0), V(12, 44.5, 0)), False)
sketch9.addGeometry(Part.LineSegment(V(12, 44.5, 0), V(14, 44.5, 0)), False)
sketch9.addGeometry(Part.LineSegment(V(14, 44.5, 0), V(14, 24.5, 0)), False)
sketch9.addGeometry(Part.LineSegment(V(14, 24.5, 0), V(12, 24.5, 0)), False)
sketch9.addGeometry(Part.LineSegment(V(12, -44.5, 0), V(12, -24.5, 0)), False)
sketch9.addGeometry(Part.LineSegment(V(12, -24.5, 0), V(14, -24.5, 0)), False)
sketch9.addGeometry(Part.LineSegment(V(14, -24.5, 0), V(14, -44.5, 0)), False)
sketch9.addGeometry(Part.LineSegment(V(14, -44.5, 0), V(12, -44.5, 0)), False)
sketch9.addGeometry(Part.LineSegment(V(23, -55.5, 0), V(23, -53.5, 0)), False)
sketch9.addGeometry(Part.LineSegment(V(23, -53.5, 0), V(48, -53.5, 0)), False)
sketch9.addGeometry(Part.LineSegment(V(48, -53.5, 0), V(48, -55.5, 0)), False)
sketch9.addGeometry(Part.LineSegment(V(48, -55.5, 0), V(23, -55.5, 0)), False)
sketch9.addGeometry(Part.LineSegment(V(12, -12.5, 0), V(12, 12.5, 0)), False)
sketch9.addGeometry(Part.LineSegment(V(12, 12.5, 0), V(14, 12.5, 0)), False)
sketch9.addGeometry(Part.LineSegment(V(14, 12.5, 0), V(14, -12.5, 0)), False)
sketch9.addGeometry(Part.LineSegment(V(14, -12.5, 0), V(12, -12.5, 0)), False)
sketch9.addConstraint(Sketcher.Constraint("Coincident", 0, 2, 1, 1))
sketch9.addConstraint(Sketcher.Constraint("Coincident", 1, 2, 2, 1))
sketch9.addConstraint(Sketcher.Constraint("Coincident", 2, 2, 3, 1))
sketch9.addConstraint(Sketcher.Constraint("Coincident", 3, 2, 0, 1))
sketch9.addConstraint(Sketcher.Constraint("Coincident", 4, 2, 5, 1))
sketch9.addConstraint(Sketcher.Constraint("Coincident", 5, 2, 6, 1))
sketch9.addConstraint(Sketcher.Constraint("Coincident", 6, 2, 7, 1))
sketch9.addConstraint(Sketcher.Constraint("Coincident", 7, 2, 4, 1))
sketch9.addConstraint(Sketcher.Constraint("Coincident", 8, 2, 9, 1))
sketch9.addConstraint(Sketcher.Constraint("Coincident", 9, 2, 10, 1))
sketch9.addConstraint(Sketcher.Constraint("Coincident", 10, 2, 11, 1))
sketch9.addConstraint(Sketcher.Constraint("Coincident", 11, 2, 8, 1))
sketch9.addConstraint(Sketcher.Constraint("Coincident", 12, 2, 13, 1))
sketch9.addConstraint(Sketcher.Constraint("Coincident", 13, 2, 14, 1))
sketch9.addConstraint(Sketcher.Constraint("Coincident", 14, 2, 15, 1))
sketch9.addConstraint(Sketcher.Constraint("Coincident", 15, 2, 12, 1))
sketch9.addConstraint(Sketcher.Constraint("Coincident", 16, 2, 17, 1))
sketch9.addConstraint(Sketcher.Constraint("Coincident", 17, 2, 18, 1))
sketch9.addConstraint(Sketcher.Constraint("Coincident", 18, 2, 19, 1))
sketch9.addConstraint(Sketcher.Constraint("Coincident", 19, 2, 16, 1))
sketch9.addConstraint(Sketcher.Constraint("Vertical", 0))
sketch9.addConstraint(Sketcher.Constraint("Horizontal", 1))
sketch9.addConstraint(Sketcher.Constraint("Vertical", 2))
sketch9.addConstraint(Sketcher.Constraint("Horizontal", 3))
sketch9.addConstraint(Sketcher.Constraint("Vertical", 4))
sketch9.addConstraint(Sketcher.Constraint("Horizontal", 5))
sketch9.addConstraint(Sketcher.Constraint("Vertical", 6))
sketch9.addConstraint(Sketcher.Constraint("Horizontal", 7))
sketch9.addConstraint(Sketcher.Constraint("Vertical", 8))
sketch9.addConstraint(Sketcher.Constraint("Horizontal", 9))
sketch9.addConstraint(Sketcher.Constraint("Vertical", 10))
sketch9.addConstraint(Sketcher.Constraint("Horizontal", 11))
sketch9.addConstraint(Sketcher.Constraint("Vertical", 12))
sketch9.addConstraint(Sketcher.Constraint("Horizontal", 13))
sketch9.addConstraint(Sketcher.Constraint("Vertical", 14))
sketch9.addConstraint(Sketcher.Constraint("Horizontal", 15))
sketch9.addConstraint(Sketcher.Constraint("Vertical", 16))
sketch9.addConstraint(Sketcher.Constraint("Horizontal", 17))
sketch9.addConstraint(Sketcher.Constraint("Vertical", 18))
sketch9.addConstraint(Sketcher.Constraint("Horizontal", 19))
sketch9.addConstraint(Sketcher.Constraint("Symmetric", 7, 2, 8, 2, -1))
sketch9.addConstraint(Sketcher.Constraint("Symmetric", 5, 2, 10, 2, -1))
sketch9.addConstraint(Sketcher.Constraint("Symmetric", 3, 2, 12, 2, -1))
sketch9.addConstraint(Sketcher.Constraint("Symmetric", 1, 2, 14, 2, -1))
sketch9.addConstraint(Sketcher.Constraint("Vertical", 11, 2, 16, 2))
sketch9.addConstraint(Sketcher.Constraint("Vertical", 10, 2, 17, 2))
sketch9.addConstraint(Sketcher.Constraint("Equal", 19, 0))
sketch9.addConstraint(Sketcher.Constraint("Equal", 15, 16))
sketch9.addConstraint(Sketcher.Constraint("DistanceX", 1, 1, 1, 2, 25.0))
sketch9.addConstraint(Sketcher.Constraint("DistanceX", 5, 1, 5, 2, 2.0))
sketch9.addConstraint(Sketcher.Constraint("DistanceY", 4, 1, 4, 2, 20.0))
sketch9.addConstraint(Sketcher.Constraint("DistanceX", -1, 1, 0, 2, 23.0))
sketch9.addConstraint(Sketcher.Constraint("DistanceX", -1, 1, 4, 2, 12.0))
sketch9.addConstraint(Sketcher.Constraint("DistanceY", 4, 2, 3, 2, 9.0))
sketch9.addConstraint(Sketcher.Constraint("DistanceY", 8, 2, 7, 2, 49.0))
sketch9.addConstraint(Sketcher.Constraint("DistanceY", 16, 2, 7, 2, 12.0))
pocket5 = body.newObject("PartDesign::Pocket", "Pocket004")
pocket5.Profile = sketch9
pocket5.Length = 10
pocket5.Reversed = True

# Sketch on XZ plane
sketch10 = body.newObject("Sketcher::SketchObject", "Sketch009")
sketch10.AttachmentSupport = (doc.getObject("XZ_Plane"), [""])
sketch10.MapMode = "FlatFace"
sketch10.AttachmentOffset = App.Placement(V(0, 0, -3), App.Rotation())
sketch10.addGeometry(Part.LineSegment(V(78, -79.5, 0), V(78, -77.5, 0)), False)
sketch10.addGeometry(Part.LineSegment(V(78, -77.5, 0), V(148, -77.5, 0)), False)
sketch10.addGeometry(Part.LineSegment(V(148, -77.5, 0), V(148, -79.5, 0)), False)
sketch10.addGeometry(Part.LineSegment(V(148, -79.5, 0), V(78, -79.5, 0)), False)
sketch10.addGeometry(Part.LineSegment(V(78, 77.5, 0), V(78, 79.5, 0)), False)
sketch10.addGeometry(Part.LineSegment(V(78, 79.5, 0), V(148, 79.5, 0)), False)
sketch10.addGeometry(Part.LineSegment(V(148, 79.5, 0), V(148, 77.5, 0)), False)
sketch10.addGeometry(Part.LineSegment(V(148, 77.5, 0), V(78, 77.5, 0)), False)
sketch10.addConstraint(Sketcher.Constraint("Coincident", 0, 2, 1, 1))
sketch10.addConstraint(Sketcher.Constraint("Coincident", 1, 2, 2, 1))
sketch10.addConstraint(Sketcher.Constraint("Coincident", 2, 2, 3, 1))
sketch10.addConstraint(Sketcher.Constraint("Coincident", 3, 2, 0, 1))
sketch10.addConstraint(Sketcher.Constraint("Coincident", 4, 2, 5, 1))
sketch10.addConstraint(Sketcher.Constraint("Coincident", 5, 2, 6, 1))
sketch10.addConstraint(Sketcher.Constraint("Coincident", 6, 2, 7, 1))
sketch10.addConstraint(Sketcher.Constraint("Coincident", 7, 2, 4, 1))
sketch10.addConstraint(Sketcher.Constraint("Vertical", 0))
sketch10.addConstraint(Sketcher.Constraint("Horizontal", 1))
sketch10.addConstraint(Sketcher.Constraint("Vertical", 2))
sketch10.addConstraint(Sketcher.Constraint("Horizontal", 3))
sketch10.addConstraint(Sketcher.Constraint("Vertical", 4))
sketch10.addConstraint(Sketcher.Constraint("Horizontal", 5))
sketch10.addConstraint(Sketcher.Constraint("Vertical", 6))
sketch10.addConstraint(Sketcher.Constraint("Horizontal", 7))
sketch10.addConstraint(Sketcher.Constraint("Symmetric", 3, 2, 4, 2, -1))
sketch10.addConstraint(Sketcher.Constraint("Symmetric", 1, 2, 6, 2, -1))
sketch10.addConstraint(Sketcher.Constraint("DistanceX", 1, 1, 1, 2, 70.0))
sketch10.addConstraint(Sketcher.Constraint("DistanceY", 0, 1, 0, 2, 2.0))
sketch10.addConstraint(Sketcher.Constraint("DistanceX", -1, 1, 0, 2, 78.0))
sketch10.addConstraint(Sketcher.Constraint("DistanceY", 0, 2, 4, 2, 157.0))
pocket6 = body.newObject("PartDesign::Pocket", "Pocket005")
pocket6.Profile = sketch10
pocket6.Length = 10
pocket6.Reversed = True

# Sketch on XZ plane
sketch11 = body.newObject("Sketcher::SketchObject", "Sketch010")
sketch11.AttachmentSupport = (doc.getObject("XZ_Plane"), [""])
sketch11.MapMode = "FlatFace"
sketch11.AttachmentOffset = App.Placement(V(0, 0, -3), App.Rotation())
sketch11.addGeometry(Part.Circle(V(230, -26.6, 0), V(0, 0, 1), 1.2), False)
sketch11.addGeometry(Part.Circle(V(230, 26.6, 0), V(0, 0, 1), 1.2), False)
sketch11.addConstraint(Sketcher.Constraint("Equal", 0, 1))
sketch11.addConstraint(Sketcher.Constraint("Symmetric", 0, 3, 1, 3, -1))
sketch11.addConstraint(Sketcher.Constraint("Diameter", 0, 2.5))
sketch11.addConstraint(Sketcher.Constraint("DistanceX", -1, 1, 0, 3, 230.0))
sketch11.addConstraint(Sketcher.Constraint("DistanceY", 0, 3, -1, 1, 26.586433))
doc.recompute()
hole4 = body.newObject("PartDesign::Hole", "Hole003")
hole4.Profile = sketch11
hole4.ThreadType = "None"
hole4.Diameter = 2.5
hole4.DepthType = "ThroughAll"
hole4.Reversed = True

# Sketch on XZ plane
sketch12 = body.newObject("Sketcher::SketchObject", "Sketch011")
sketch12.AttachmentSupport = (doc.getObject("XZ_Plane"), [""])
sketch12.MapMode = "FlatFace"
sketch12.AttachmentOffset = App.Placement(V(0, 0, -3), App.Rotation())
sketch12.addGeometry(Part.LineSegment(V(229, -15, 0), V(229, 15, 0)), False)
sketch12.addGeometry(Part.LineSegment(V(229, 15, 0), V(231, 15, 0)), False)
sketch12.addGeometry(Part.LineSegment(V(231, 15, 0), V(231, -15, 0)), False)
sketch12.addGeometry(Part.LineSegment(V(231, -15, 0), V(229, -15, 0)), False)
sketch12.addConstraint(Sketcher.Constraint("Coincident", 0, 2, 1, 1))
sketch12.addConstraint(Sketcher.Constraint("Coincident", 1, 2, 2, 1))
sketch12.addConstraint(Sketcher.Constraint("Coincident", 2, 2, 3, 1))
sketch12.addConstraint(Sketcher.Constraint("Coincident", 3, 2, 0, 1))
sketch12.addConstraint(Sketcher.Constraint("Vertical", 0))
sketch12.addConstraint(Sketcher.Constraint("Horizontal", 1))
sketch12.addConstraint(Sketcher.Constraint("Vertical", 2))
sketch12.addConstraint(Sketcher.Constraint("Horizontal", 3))
sketch12.addConstraint(Sketcher.Constraint("DistanceX", 1, 1, 1, 2, 2.0))
sketch12.addConstraint(Sketcher.Constraint("DistanceY", 0, 1, 0, 2, 30.0))
sketch12.addConstraint(Sketcher.Constraint("DistanceX", -1, 1, 0, 2, 229.0))
sketch12.addConstraint(Sketcher.Constraint("DistanceY", -1, 1, 0, 2, 15.0))
pocket7 = body.newObject("PartDesign::Pocket", "Pocket006")
pocket7.Profile = sketch12
pocket7.Length = 10
pocket7.Reversed = True

# Sketch on XZ plane
sketch13 = body.newObject("Sketcher::SketchObject", "Sketch012")
sketch13.AttachmentSupport = (doc.getObject("XZ_Plane"), [""])
sketch13.MapMode = "FlatFace"
sketch13.AttachmentOffset = App.Placement(V(0, 0, -3), App.Rotation())
sketch13.addGeometry(Part.Circle(V(73, -58.5, 0), V(0, 0, 1), 1.2), False)
sketch13.addGeometry(Part.Circle(V(190, -58.5, 0), V(0, 0, 1), 1.2), False)
sketch13.addGeometry(Part.Circle(V(190, 58.5, 0), V(0, 0, 1), 1.2), False)
sketch13.addGeometry(Part.Circle(V(73, 58.5, 0), V(0, 0, 1), 1.2), False)
sketch13.addConstraint(Sketcher.Constraint("Equal", 0, 1))
sketch13.addConstraint(Sketcher.Constraint("Equal", 1, 2))
sketch13.addConstraint(Sketcher.Constraint("Equal", 2, 3))
sketch13.addConstraint(Sketcher.Constraint("Symmetric", 1, 3, 2, 3, -1))
sketch13.addConstraint(Sketcher.Constraint("Symmetric", 0, 3, 3, 3, -1))
sketch13.addConstraint(Sketcher.Constraint("Horizontal", 0, 3, 1, 3))
sketch13.addConstraint(Sketcher.Constraint("Diameter", 0, 2.5))
sketch13.addConstraint(Sketcher.Constraint("DistanceX", -1, 1, 0, 3, 73.0))
sketch13.addConstraint(Sketcher.Constraint("DistanceX", -1, 1, 1, 3, 190.0))
sketch13.addConstraint(Sketcher.Constraint("DistanceY", 1, 3, 2, 3, 117.0))
doc.recompute()
hole5 = body.newObject("PartDesign::Hole", "Hole004")
hole5.Profile = sketch13
hole5.ThreadType = "None"
hole5.Diameter = 2.5
hole5.DepthType = "ThroughAll"
hole5.Reversed = True

# Sketch on XZ plane
sketch14 = body.newObject("Sketcher::SketchObject", "Sketch013")
sketch14.AttachmentSupport = (doc.getObject("XZ_Plane"), [""])
sketch14.MapMode = "FlatFace"
sketch14.AttachmentOffset = App.Placement(V(0, 0, -3), App.Rotation())
sketch14.addGeometry(Part.LineSegment(V(195, -8, 0), V(195, 8, 0)), False)
sketch14.addGeometry(Part.LineSegment(V(195, 8, 0), V(225, 8, 0)), False)
sketch14.addGeometry(Part.LineSegment(V(225, 8, 0), V(225, -8, 0)), False)
sketch14.addGeometry(Part.LineSegment(V(225, -8, 0), V(195, -8, 0)), False)
sketch14.addConstraint(Sketcher.Constraint("Coincident", 0, 2, 1, 1))
sketch14.addConstraint(Sketcher.Constraint("Coincident", 1, 2, 2, 1))
sketch14.addConstraint(Sketcher.Constraint("Coincident", 2, 2, 3, 1))
sketch14.addConstraint(Sketcher.Constraint("Coincident", 3, 2, 0, 1))
sketch14.addConstraint(Sketcher.Constraint("Vertical", 0))
sketch14.addConstraint(Sketcher.Constraint("Horizontal", 1))
sketch14.addConstraint(Sketcher.Constraint("Vertical", 2))
sketch14.addConstraint(Sketcher.Constraint("Horizontal", 3))
sketch14.addConstraint(Sketcher.Constraint("DistanceX", 1, 1, 1, 2, 30.0))
sketch14.addConstraint(Sketcher.Constraint("DistanceY", 0, 1, 0, 2, 15.0))
sketch14.addConstraint(Sketcher.Constraint("DistanceX", -1, 1, 0, 2, 195.0))
sketch14.addConstraint(Sketcher.Constraint("DistanceY", -1, 1, 0, 2, 7.5))
pocket8 = body.newObject("PartDesign::Pocket", "Pocket007")
pocket8.Profile = sketch14
pocket8.Length = 10
pocket8.Reversed = True

# Sketch on XZ plane
sketch15 = body.newObject("Sketcher::SketchObject", "Sketch014")
sketch15.AttachmentSupport = (doc.getObject("XZ_Plane"), [""])
sketch15.MapMode = "FlatFace"
sketch15.AttachmentOffset = App.Placement(V(0, 0, -3), App.Rotation())
sketch15.addGeometry(Part.LineSegment(V(20, -8, 0), V(20, 8, 0)), False)
sketch15.addGeometry(Part.LineSegment(V(20, 8, 0), V(55, 8, 0)), False)
sketch15.addGeometry(Part.LineSegment(V(55, 8, 0), V(55, -8, 0)), False)
sketch15.addGeometry(Part.LineSegment(V(55, -8, 0), V(20, -8, 0)), False)
sketch15.addConstraint(Sketcher.Constraint("Coincident", 0, 2, 1, 1))
sketch15.addConstraint(Sketcher.Constraint("Coincident", 1, 2, 2, 1))
sketch15.addConstraint(Sketcher.Constraint("Coincident", 2, 2, 3, 1))
sketch15.addConstraint(Sketcher.Constraint("Coincident", 3, 2, 0, 1))
sketch15.addConstraint(Sketcher.Constraint("Vertical", 0))
sketch15.addConstraint(Sketcher.Constraint("Horizontal", 1))
sketch15.addConstraint(Sketcher.Constraint("Vertical", 2))
sketch15.addConstraint(Sketcher.Constraint("Horizontal", 3))
sketch15.addConstraint(Sketcher.Constraint("DistanceX", 1, 1, 1, 2, 35.0))
sketch15.addConstraint(Sketcher.Constraint("DistanceY", 0, 1, 0, 2, 15.0))
sketch15.addConstraint(Sketcher.Constraint("DistanceX", -1, 1, 0, 2, 20.0))
sketch15.addConstraint(Sketcher.Constraint("DistanceY", -1, 1, 0, 2, 7.5))
pocket9 = body.newObject("PartDesign::Pocket", "Pocket008")
pocket9.Profile = sketch15
pocket9.Length = 10
pocket9.Reversed = True

# Sketch on XZ plane
sketch16 = body.newObject("Sketcher::SketchObject", "Sketch015")
sketch16.AttachmentSupport = (doc.getObject("XZ_Plane"), [""])
sketch16.MapMode = "FlatFace"
sketch16.AttachmentOffset = App.Placement(V(0, 0, -3), App.Rotation())
sketch16.addGeometry(Part.LineSegment(V(100, -50, 0), V(100, -20, 0)), False)
sketch16.addGeometry(Part.LineSegment(V(100, -20, 0), V(145, -20, 0)), False)
sketch16.addGeometry(Part.LineSegment(V(145, -20, 0), V(145, -50, 0)), False)
sketch16.addGeometry(Part.LineSegment(V(145, -50, 0), V(100, -50, 0)), False)
sketch16.addGeometry(Part.LineSegment(V(100, 20, 0), V(100, 50, 0)), False)
sketch16.addGeometry(Part.LineSegment(V(100, 50, 0), V(145, 50, 0)), False)
sketch16.addGeometry(Part.LineSegment(V(145, 50, 0), V(145, 20, 0)), False)
sketch16.addGeometry(Part.LineSegment(V(145, 20, 0), V(100, 20, 0)), False)
sketch16.addConstraint(Sketcher.Constraint("Coincident", 0, 2, 1, 1))
sketch16.addConstraint(Sketcher.Constraint("Coincident", 1, 2, 2, 1))
sketch16.addConstraint(Sketcher.Constraint("Coincident", 2, 2, 3, 1))
sketch16.addConstraint(Sketcher.Constraint("Coincident", 3, 2, 0, 1))
sketch16.addConstraint(Sketcher.Constraint("Coincident", 4, 2, 5, 1))
sketch16.addConstraint(Sketcher.Constraint("Coincident", 5, 2, 6, 1))
sketch16.addConstraint(Sketcher.Constraint("Coincident", 6, 2, 7, 1))
sketch16.addConstraint(Sketcher.Constraint("Coincident", 7, 2, 4, 1))
sketch16.addConstraint(Sketcher.Constraint("Vertical", 0))
sketch16.addConstraint(Sketcher.Constraint("Horizontal", 1))
sketch16.addConstraint(Sketcher.Constraint("Vertical", 2))
sketch16.addConstraint(Sketcher.Constraint("Horizontal", 3))
sketch16.addConstraint(Sketcher.Constraint("Vertical", 4))
sketch16.addConstraint(Sketcher.Constraint("Horizontal", 5))
sketch16.addConstraint(Sketcher.Constraint("Vertical", 6))
sketch16.addConstraint(Sketcher.Constraint("Horizontal", 7))
sketch16.addConstraint(Sketcher.Constraint("Symmetric", 3, 2, 4, 2, -1))
sketch16.addConstraint(Sketcher.Constraint("Symmetric", 1, 2, 6, 2, -1))
sketch16.addConstraint(Sketcher.Constraint("DistanceX", 1, 1, 1, 2, 45.0))
sketch16.addConstraint(Sketcher.Constraint("DistanceY", 0, 1, 0, 2, 30.0))
sketch16.addConstraint(Sketcher.Constraint("DistanceX", -1, 1, 0, 2, 100.0))
sketch16.addConstraint(Sketcher.Constraint("DistanceY", 0, 2, -1, 1, 20.0))
pocket10 = body.newObject("PartDesign::Pocket", "Pocket009")
pocket10.Profile = sketch16
pocket10.Length = 10
pocket10.Reversed = True

# Sketch on XZ plane
sketch17 = body.newObject("Sketcher::SketchObject", "Sketch016")
sketch17.AttachmentSupport = (doc.getObject("XZ_Plane"), [""])
sketch17.MapMode = "FlatFace"
sketch17.AttachmentOffset = App.Placement(V(0, 0, -3), App.Rotation())
sketch17.addGeometry(Part.Circle(V(20.5, 47, 0), V(0, 0, 1), 1.2), False)
sketch17.addGeometry(Part.Circle(V(53.5, 47, 0), V(0, 0, 1), 1.2), False)
sketch17.addGeometry(Part.Circle(V(53.5, 14, 0), V(0, 0, 1), 1.2), False)
sketch17.addGeometry(Part.Circle(V(20.5, 14, 0), V(0, 0, 1), 1.2), False)
sketch17.addConstraint(Sketcher.Constraint("Equal", 0, 1))
sketch17.addConstraint(Sketcher.Constraint("Equal", 1, 2))
sketch17.addConstraint(Sketcher.Constraint("Equal", 2, 3))
sketch17.addConstraint(Sketcher.Constraint("Horizontal", 0, 3, 1, 3))
sketch17.addConstraint(Sketcher.Constraint("Horizontal", 2, 3, 3, 3))
sketch17.addConstraint(Sketcher.Constraint("Vertical", 1, 3, 2, 3))
sketch17.addConstraint(Sketcher.Constraint("Vertical", 0, 3, 3, 3))
sketch17.addConstraint(Sketcher.Constraint("Diameter", 0, 2.5))
sketch17.addConstraint(Sketcher.Constraint("DistanceX", -1, 1, 0, 3, 20.49))
sketch17.addConstraint(Sketcher.Constraint("DistanceY", -1, 1, 0, 3, 47.01))
sketch17.addConstraint(Sketcher.Constraint("DistanceX", -1, 1, 1, 3, 53.51))
sketch17.addConstraint(Sketcher.Constraint("DistanceY", -1, 1, 2, 3, 13.99))
doc.recompute()
hole6 = body.newObject("PartDesign::Hole", "Hole005")
hole6.Profile = sketch17
hole6.ThreadType = "None"
hole6.Diameter = 2.5
hole6.DepthType = "ThroughAll"
hole6.Reversed = True
doc.recompute()

fillet = body.newObject("PartDesign::Fillet", "Fillet")
fillet.Base = (hole6, edges_at(hole6, [
    (0, 1.5, -67.5),
    (70, 1.5, -67.5),
    (70, 1.5, -92.5),
    (70, 1.5, 92.5),
    (70, 1.5, 67.5),
    (0, 1.5, 67.5),
]))
fillet.Radius = 8
doc.recompute()

fillet2 = body.newObject("PartDesign::Fillet", "Fillet001")
fillet2.Base = (fillet, edges_at(fillet, [
    (185.052, 1.5, -92.5),
    (228.353, 1.5, -74.033),
    (245, 1.5, -30),
    (245, 1.5, 30),
    (228.353, 1.5, 74.033),
    (185.052, 1.5, 92.5),
]))
fillet2.Radius = 10
doc.recompute()

fillet3 = body.newObject("PartDesign::Fillet", "Fillet002")
fillet3.Base = (fillet2, edges_at(fillet2, [
    (195, 1.5, 7.5),
    (195, 1.5, -7.5),
    (225, 1.5, -7.5),
    (225, 1.5, 7.5),
    (20, 1.5, 7.5),
    (20, 1.5, -7.5),
    (55, 1.5, -7.5),
    (55, 1.5, 7.5),
    (100, 1.5, -20),
    (100, 1.5, -50),
    (145, 1.5, -50),
    (145, 1.5, -20),
    (100, 1.5, 50),
    (100, 1.5, 20),
    (145, 1.5, 20),
    (145, 1.5, 50),
]))
fillet3.Radius = 5

# Sketch on XZ plane
sketch18 = body.newObject("Sketcher::SketchObject", "Sketch017")
sketch18.AttachmentSupport = (doc.getObject("XZ_Plane"), [""])
sketch18.MapMode = "FlatFace"
sketch18.AttachmentOffset = App.Placement(V(0, 0, -3), App.Rotation())
sketch18.addGeometry(Part.Circle(V(83, -70, 0), V(0, 0, 1), 1.7), False)
sketch18.addGeometry(Part.Circle(V(103, -70, 0), V(0, 0, 1), 1.7), False)
sketch18.addGeometry(Part.Circle(V(103, 70, 0), V(0, 0, 1), 1.7), False)
sketch18.addGeometry(Part.Circle(V(83, 70, 0), V(0, 0, 1), 1.7), False)
sketch18.addConstraint(Sketcher.Constraint("Equal", 0, 1))
sketch18.addConstraint(Sketcher.Constraint("Equal", 1, 2))
sketch18.addConstraint(Sketcher.Constraint("Equal", 2, 3))
sketch18.addConstraint(Sketcher.Constraint("Symmetric", 1, 3, 2, 3, -1))
sketch18.addConstraint(Sketcher.Constraint("Symmetric", 0, 3, 3, 3, -1))
sketch18.addConstraint(Sketcher.Constraint("Horizontal", 0, 3, 1, 3))
sketch18.addConstraint(Sketcher.Constraint("Diameter", 0, 3.4))
sketch18.addConstraint(Sketcher.Constraint("DistanceX", -1, 1, 0, 3, 83.0))
sketch18.addConstraint(Sketcher.Constraint("DistanceY", 0, 3, -1, 1, 70.0))
sketch18.addConstraint(Sketcher.Constraint("DistanceX", -1, 1, 1, 3, 103.0))
doc.recompute()
hole7 = body.newObject("PartDesign::Hole", "Hole006")
hole7.Profile = sketch18
hole7.ThreadType = "None"
hole7.Diameter = 3.4
hole7.DepthType = "ThroughAll"
hole7.Reversed = True

doc.recompute()
